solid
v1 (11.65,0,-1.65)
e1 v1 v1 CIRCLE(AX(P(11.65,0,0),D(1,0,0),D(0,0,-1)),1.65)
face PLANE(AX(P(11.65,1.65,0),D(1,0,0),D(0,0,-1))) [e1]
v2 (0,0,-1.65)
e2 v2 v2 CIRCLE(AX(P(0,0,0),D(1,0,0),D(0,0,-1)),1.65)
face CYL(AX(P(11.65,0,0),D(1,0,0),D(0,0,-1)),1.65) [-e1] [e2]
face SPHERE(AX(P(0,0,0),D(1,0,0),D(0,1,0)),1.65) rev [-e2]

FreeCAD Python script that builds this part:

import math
import FreeCAD as App
import Part
import Sketcher
Q = App.Units.Quantity

doc = App.newDocument("Part")
body = doc.addObject("PartDesign::Body", "Body")

sketch1 = body.newObject("Sketcher::SketchObject", "Sketch")
sketch1.AttachmentSupport = (doc.getObject("XY_Plane"), [""])
sketch1.MapMode = "FlatFace"
sketch1.addGeometry([
    Part.LineSegment(App.Vector(11.65, 1.65, 0), App.Vector(0, 1.65, 0)),
    Part.ArcOfCircle(Part.Circle(App.Vector(0, 0, 0), App.Vector(0, 0, 1), 1.65), math.radians(0), math.radians(90)),
    Part.LineSegment(App.Vector(1.65, 0, 0), App.Vector(11.65, 0, 0)),
    Part.LineSegment(App.Vector(11.65, 0, 0), App.Vector(11.65, 1.65, 0)),
], False)
sketch1.addConstraint([
    Sketcher.Constraint("Tangent", 0, 2, 1, 2),
    Sketcher.Constraint("Coincident", 1, 1, 2, 1),
    Sketcher.Constraint("Coincident", 2, 2, 3, 1),
    Sketcher.Constraint("Coincident", 3, 2, 0, 1),
    Sketcher.Constraint("Horizontal", 0),
    Sketcher.Constraint("Horizontal", 2),
    Sketcher.Constraint("Vertical", 3),
    Sketcher.Constraint("Coincident", 1, 3, -1, 1),
    Sketcher.Constraint("PointOnObject", 1, 1, -1),
    Sketcher.Constraint("DistanceX", 2, 1, 2, 2, Q("10 mm")),
    Sketcher.Constraint("Radius", 1, Q("1.65 mm")),
])
revolution = body.newObject("PartDesign::Revolution", "Revolution")
revolution.Profile = sketch1
revolution.ReferenceAxis = (sketch1, ["H_Axis"])
revolution.Angle = 360

doc.recompute()
